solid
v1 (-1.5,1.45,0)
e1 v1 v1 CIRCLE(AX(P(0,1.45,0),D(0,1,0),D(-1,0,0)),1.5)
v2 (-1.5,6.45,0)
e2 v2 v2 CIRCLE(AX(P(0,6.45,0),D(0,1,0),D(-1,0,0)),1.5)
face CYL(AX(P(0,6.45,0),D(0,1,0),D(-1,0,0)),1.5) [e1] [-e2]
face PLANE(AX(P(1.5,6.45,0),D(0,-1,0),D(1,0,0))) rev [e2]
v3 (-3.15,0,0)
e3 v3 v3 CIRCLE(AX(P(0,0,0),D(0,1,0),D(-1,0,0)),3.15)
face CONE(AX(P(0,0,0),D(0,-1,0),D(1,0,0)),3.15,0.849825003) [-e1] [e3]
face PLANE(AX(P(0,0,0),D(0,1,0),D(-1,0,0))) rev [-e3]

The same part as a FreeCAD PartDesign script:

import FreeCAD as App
import Part
import Sketcher
Q = App.Units.Quantity

doc = App.newDocument("Part")
body = doc.addObject("PartDesign::Body", "Body")

sketch1 = body.newObject("Sketcher::SketchObject", "Sketch")
sketch1.AttachmentSupport = (doc.getObject("XY_Plane"), [""])
sketch1.MapMode = "FlatFace"
sketch1.addGeometry([
    Part.LineSegment(App.Vector(0, 0, 0), App.Vector(3.1, 0, 0)),
    Part.LineSegment(App.Vector(3.1, 0, 0), App.Vector(1.5, 1.4, 0)),
    Part.LineSegment(App.Vector(1.5, 1.4, 0), App.Vector(1.5, 6.5, 0)),
    Part.LineSegment(App.Vector(1.5, 6.5, 0), App.Vector(0, 6.5, 0)),
    Part.LineSegment(App.Vector(0, 6.5, 0), App.Vector(0, 0, 0)),
], False)
sketch1.addConstraint([
    Sketcher.Constraint("Coincident", 0, 2, 1, 1),
    Sketcher.Constraint("Coincident", 1, 2, 2, 1),
    Sketcher.Constraint("Coincident", 2, 2, 3, 1),
    Sketcher.Constraint("Coincident", 3, 2, 4, 1),
    Sketcher.Constraint("Coincident", 4, 2, 0, 1),
    Sketcher.Constraint("Horizontal", 0),
    Sketcher.Constraint("Vertical", 2),
    Sketcher.Constraint("Horizontal", 3),
    Sketcher.Constraint("Vertical", 4),
    Sketcher.Constraint("Coincident", 4, 2, -1, 1),
    Sketcher.Constraint("DistanceY", 2, 1, 2, 2, Q("5 mm")),
    Sketcher.Constraint("DistanceX", 3, 2, 3, 1, Q("1.5 mm")),
    Sketcher.Constraint("DistanceX", 0, 1, 0, 2, Q("3.15 mm")),
    Sketcher.Constraint("DistanceY", 4, 2, 4, 1, Q("6.45 mm")),
])
revolution = body.newObject("PartDesign::Revolution", "Revolution")
revolution.Profile = sketch1
revolution.ReferenceAxis = (sketch1, ["V_Axis"])
revolution.Angle = 360

doc.recompute()
